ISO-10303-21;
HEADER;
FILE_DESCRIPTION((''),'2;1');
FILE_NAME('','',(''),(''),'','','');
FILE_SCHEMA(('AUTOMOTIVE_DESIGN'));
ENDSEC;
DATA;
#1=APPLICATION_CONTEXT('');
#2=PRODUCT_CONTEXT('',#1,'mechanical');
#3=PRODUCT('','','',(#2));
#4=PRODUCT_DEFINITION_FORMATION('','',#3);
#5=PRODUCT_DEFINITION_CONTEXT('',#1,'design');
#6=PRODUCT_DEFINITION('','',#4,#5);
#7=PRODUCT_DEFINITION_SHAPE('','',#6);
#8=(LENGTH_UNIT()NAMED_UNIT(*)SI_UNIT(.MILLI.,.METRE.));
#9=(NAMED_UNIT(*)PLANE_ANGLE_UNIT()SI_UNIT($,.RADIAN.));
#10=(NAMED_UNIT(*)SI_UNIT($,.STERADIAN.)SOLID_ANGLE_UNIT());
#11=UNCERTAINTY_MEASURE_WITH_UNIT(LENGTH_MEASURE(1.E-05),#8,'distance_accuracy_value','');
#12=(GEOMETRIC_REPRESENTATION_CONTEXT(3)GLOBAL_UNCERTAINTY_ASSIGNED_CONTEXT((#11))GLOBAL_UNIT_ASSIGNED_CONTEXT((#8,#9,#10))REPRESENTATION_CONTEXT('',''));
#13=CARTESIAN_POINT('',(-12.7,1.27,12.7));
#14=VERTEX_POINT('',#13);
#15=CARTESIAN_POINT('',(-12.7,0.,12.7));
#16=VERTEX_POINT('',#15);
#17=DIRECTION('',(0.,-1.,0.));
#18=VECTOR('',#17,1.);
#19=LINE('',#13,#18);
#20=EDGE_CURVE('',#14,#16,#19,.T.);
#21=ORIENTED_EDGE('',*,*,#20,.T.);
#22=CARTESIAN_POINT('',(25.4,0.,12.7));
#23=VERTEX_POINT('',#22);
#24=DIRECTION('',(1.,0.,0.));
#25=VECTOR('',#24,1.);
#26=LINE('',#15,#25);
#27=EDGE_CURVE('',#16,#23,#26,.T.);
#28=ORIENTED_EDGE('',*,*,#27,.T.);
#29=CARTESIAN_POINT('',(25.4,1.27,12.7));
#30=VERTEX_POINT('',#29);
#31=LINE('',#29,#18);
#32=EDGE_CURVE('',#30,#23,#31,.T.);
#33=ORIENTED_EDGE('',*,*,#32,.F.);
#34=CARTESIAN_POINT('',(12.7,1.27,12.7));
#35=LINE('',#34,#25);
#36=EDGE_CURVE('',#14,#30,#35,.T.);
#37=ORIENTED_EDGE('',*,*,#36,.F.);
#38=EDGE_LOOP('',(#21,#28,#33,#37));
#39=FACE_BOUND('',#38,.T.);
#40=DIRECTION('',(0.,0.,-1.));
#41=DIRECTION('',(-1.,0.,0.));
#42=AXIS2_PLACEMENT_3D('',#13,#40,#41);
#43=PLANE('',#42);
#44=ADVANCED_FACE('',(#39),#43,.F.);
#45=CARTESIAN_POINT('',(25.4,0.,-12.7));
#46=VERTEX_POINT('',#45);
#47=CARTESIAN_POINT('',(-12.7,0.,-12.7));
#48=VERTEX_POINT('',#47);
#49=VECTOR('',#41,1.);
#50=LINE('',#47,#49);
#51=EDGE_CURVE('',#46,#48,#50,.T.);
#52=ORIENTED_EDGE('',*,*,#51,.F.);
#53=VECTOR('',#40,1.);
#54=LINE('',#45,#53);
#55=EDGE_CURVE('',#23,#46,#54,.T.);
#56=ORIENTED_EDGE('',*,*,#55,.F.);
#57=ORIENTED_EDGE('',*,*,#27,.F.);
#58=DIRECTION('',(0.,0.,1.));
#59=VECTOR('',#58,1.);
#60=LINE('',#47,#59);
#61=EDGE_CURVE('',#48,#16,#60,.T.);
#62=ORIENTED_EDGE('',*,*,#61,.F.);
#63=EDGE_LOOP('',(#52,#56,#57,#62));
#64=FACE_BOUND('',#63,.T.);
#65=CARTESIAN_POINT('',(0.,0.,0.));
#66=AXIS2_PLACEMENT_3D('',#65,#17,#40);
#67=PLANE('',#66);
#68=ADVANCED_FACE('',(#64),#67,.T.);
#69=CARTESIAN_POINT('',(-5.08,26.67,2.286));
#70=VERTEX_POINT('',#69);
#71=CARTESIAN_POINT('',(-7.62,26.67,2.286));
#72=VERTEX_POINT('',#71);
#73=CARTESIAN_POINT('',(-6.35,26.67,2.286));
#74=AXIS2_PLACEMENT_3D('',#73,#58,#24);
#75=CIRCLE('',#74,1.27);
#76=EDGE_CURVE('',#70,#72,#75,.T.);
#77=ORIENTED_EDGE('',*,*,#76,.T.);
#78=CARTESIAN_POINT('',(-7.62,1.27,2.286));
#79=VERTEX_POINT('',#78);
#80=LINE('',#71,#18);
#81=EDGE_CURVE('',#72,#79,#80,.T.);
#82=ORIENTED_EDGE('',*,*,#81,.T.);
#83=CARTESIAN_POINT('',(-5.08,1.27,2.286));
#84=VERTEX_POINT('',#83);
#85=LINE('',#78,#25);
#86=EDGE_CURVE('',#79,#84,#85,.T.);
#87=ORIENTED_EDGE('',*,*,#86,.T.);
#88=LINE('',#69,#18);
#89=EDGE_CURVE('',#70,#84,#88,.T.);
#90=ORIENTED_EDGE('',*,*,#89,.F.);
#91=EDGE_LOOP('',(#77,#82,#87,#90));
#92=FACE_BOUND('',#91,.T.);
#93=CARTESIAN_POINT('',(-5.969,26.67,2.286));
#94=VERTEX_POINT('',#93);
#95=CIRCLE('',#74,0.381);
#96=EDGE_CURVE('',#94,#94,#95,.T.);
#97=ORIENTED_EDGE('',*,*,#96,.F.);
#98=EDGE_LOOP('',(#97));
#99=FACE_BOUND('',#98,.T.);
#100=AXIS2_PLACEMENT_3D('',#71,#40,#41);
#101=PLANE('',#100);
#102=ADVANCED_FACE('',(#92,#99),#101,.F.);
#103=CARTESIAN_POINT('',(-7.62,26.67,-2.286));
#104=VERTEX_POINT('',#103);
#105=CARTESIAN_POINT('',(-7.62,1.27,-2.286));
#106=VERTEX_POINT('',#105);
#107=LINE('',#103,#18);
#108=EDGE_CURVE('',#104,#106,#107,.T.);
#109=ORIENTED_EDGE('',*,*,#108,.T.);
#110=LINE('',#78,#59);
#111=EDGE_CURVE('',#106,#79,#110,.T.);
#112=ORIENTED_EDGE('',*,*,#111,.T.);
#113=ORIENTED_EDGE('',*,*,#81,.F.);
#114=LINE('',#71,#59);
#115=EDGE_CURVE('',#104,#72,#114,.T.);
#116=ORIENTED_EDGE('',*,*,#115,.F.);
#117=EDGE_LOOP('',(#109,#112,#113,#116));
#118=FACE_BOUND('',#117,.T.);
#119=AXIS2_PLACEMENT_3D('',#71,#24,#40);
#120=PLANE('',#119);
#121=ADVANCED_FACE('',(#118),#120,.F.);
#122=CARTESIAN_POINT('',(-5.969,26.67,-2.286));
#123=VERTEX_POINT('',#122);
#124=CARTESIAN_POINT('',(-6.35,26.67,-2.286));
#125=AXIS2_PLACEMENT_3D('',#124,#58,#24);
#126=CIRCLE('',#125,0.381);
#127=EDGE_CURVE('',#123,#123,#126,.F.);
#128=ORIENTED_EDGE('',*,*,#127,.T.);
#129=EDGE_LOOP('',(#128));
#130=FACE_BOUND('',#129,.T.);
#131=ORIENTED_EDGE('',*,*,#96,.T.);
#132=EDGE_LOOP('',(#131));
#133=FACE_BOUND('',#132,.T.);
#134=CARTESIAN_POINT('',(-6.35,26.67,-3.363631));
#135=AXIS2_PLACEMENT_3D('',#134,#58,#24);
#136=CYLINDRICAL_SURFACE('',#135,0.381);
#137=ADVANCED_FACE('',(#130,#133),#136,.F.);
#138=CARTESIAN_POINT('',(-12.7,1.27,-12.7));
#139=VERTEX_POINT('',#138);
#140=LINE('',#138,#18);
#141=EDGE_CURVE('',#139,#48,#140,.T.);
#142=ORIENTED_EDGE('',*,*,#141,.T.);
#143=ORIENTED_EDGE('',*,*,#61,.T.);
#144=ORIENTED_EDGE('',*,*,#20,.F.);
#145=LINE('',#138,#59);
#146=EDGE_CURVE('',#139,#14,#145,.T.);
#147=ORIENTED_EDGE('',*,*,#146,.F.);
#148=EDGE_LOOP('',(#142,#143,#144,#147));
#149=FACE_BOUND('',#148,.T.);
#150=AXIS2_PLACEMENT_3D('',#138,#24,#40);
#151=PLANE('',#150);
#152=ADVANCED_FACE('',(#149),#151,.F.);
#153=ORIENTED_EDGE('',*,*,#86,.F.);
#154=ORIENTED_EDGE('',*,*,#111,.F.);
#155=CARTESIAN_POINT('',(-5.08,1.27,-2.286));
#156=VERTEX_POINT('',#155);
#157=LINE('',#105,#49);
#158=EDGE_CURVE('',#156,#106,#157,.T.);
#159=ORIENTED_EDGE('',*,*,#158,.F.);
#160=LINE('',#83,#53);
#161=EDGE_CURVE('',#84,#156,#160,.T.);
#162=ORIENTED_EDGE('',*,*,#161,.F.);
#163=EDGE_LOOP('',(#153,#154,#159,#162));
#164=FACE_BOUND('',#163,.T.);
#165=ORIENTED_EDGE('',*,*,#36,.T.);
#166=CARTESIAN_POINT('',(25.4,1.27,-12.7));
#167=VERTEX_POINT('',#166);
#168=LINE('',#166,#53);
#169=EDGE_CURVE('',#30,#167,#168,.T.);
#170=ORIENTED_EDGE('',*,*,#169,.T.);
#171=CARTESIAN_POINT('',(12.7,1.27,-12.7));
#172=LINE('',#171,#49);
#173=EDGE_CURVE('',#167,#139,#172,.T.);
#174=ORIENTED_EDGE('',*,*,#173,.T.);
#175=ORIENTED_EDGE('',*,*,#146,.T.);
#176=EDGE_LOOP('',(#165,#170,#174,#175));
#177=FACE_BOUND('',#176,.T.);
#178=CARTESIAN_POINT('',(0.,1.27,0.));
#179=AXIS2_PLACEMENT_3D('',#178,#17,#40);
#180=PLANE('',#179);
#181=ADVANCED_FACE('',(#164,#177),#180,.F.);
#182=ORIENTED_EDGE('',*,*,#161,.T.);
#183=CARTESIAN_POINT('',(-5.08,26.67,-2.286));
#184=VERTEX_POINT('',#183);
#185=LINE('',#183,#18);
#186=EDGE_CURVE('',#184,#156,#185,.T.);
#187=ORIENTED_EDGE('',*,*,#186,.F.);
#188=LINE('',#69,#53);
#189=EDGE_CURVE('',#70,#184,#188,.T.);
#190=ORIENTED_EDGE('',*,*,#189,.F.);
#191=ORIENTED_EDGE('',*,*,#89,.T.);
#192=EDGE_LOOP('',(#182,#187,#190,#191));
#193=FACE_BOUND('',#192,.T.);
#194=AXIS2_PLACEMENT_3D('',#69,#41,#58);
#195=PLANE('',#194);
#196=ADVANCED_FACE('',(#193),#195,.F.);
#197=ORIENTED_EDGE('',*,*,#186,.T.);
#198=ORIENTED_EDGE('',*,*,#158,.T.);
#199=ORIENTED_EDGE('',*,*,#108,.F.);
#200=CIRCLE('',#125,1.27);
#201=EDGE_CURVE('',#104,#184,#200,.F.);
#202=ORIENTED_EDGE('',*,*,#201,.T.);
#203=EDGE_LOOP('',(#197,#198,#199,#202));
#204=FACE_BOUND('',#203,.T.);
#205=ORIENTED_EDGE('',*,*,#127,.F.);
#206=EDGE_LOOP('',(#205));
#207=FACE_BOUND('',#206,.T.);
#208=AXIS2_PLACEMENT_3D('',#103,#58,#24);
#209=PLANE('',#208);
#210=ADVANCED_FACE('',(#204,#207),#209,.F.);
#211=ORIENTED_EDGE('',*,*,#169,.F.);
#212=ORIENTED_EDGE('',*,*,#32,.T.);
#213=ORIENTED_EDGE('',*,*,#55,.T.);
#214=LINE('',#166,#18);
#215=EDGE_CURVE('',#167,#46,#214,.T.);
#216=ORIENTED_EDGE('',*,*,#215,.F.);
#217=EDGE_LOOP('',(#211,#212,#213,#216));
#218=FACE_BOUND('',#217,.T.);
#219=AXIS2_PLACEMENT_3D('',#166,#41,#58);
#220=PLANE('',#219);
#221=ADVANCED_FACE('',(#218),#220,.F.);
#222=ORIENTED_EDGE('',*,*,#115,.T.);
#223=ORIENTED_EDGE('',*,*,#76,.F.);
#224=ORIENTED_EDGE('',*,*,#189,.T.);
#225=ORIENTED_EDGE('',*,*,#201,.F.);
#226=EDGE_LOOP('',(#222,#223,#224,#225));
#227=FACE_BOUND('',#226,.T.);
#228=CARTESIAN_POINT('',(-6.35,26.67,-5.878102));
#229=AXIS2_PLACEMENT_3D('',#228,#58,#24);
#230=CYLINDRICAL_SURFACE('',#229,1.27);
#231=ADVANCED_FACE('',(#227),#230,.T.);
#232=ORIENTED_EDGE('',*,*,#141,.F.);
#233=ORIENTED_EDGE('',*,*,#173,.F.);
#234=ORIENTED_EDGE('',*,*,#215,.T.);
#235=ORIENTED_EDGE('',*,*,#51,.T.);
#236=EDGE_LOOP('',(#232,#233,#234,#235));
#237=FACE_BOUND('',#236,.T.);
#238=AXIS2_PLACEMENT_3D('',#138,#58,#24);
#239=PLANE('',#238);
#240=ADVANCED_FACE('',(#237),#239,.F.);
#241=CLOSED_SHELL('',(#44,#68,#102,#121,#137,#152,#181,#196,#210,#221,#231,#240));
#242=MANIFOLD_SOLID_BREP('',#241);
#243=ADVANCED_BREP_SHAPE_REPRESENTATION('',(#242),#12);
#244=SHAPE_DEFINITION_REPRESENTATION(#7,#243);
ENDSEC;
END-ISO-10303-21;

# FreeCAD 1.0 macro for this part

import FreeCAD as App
import Part
import Sketcher
Q = App.Units.Quantity


def add_polygon(sketch, points):
    """Adds a closed chain of lines whose ends are joined by coincident constraints."""
    first, n = sketch.GeometryCount, len(points)
    for a, b in zip(points, points[1:] + points[:1]):
        sketch.addGeometry(Part.LineSegment(App.Vector(*a, 0), App.Vector(*b, 0)), False)
    for i in range(n):
        sketch.addConstraint(Sketcher.Constraint("Coincident", first + i, 2, first + (i + 1) % n, 1))

doc = App.newDocument("Part")
body = doc.addObject("PartDesign::Body", "Body")

# Sketch on XZ plane
sketch1 = body.newObject("Sketcher::SketchObject", "Sketch")
sketch1.AttachmentSupport = (doc.getObject("XZ_Plane"), [""])
sketch1.MapMode = "FlatFace"
add_polygon(sketch1, [(25, -13), (-13, -13), (-13, 13), (25, 13)])  # lines 0-3
sketch1.addConstraint([
    Sketcher.Constraint("Horizontal", 0),
    Sketcher.Constraint("Vertical", 1),
    Sketcher.Constraint("Horizontal", 2),
    Sketcher.Constraint("Vertical", 3),
    Sketcher.Constraint("DistanceY", 1, 1, 1, 2, Q("1 in")),
    Sketcher.Constraint("DistanceX", 0, 2, 0, 1, Q("1.5 in")),
    Sketcher.Constraint("DistanceX", -1, 1, 2, 2, Q("1 in")),
    Sketcher.Constraint("DistanceY", 0, 2, -1, 1, Q("0.5 in")),
])
pad1 = body.newObject("PartDesign::Pad", "Pad")
pad1.Profile = sketch1
pad1.Length = Q("0.05 in")
pad1.Reversed = True

# Sketch on XZ plane
sketch2 = body.newObject("Sketcher::SketchObject", "Sketch001")
sketch2.AttachmentSupport = (doc.getObject("XZ_Plane"), [""])
sketch2.MapMode = "FlatFace"
sketch2.AttachmentOffset = App.Placement(App.Vector(0, 0, -0.05 * 25.4), App.Rotation())
add_polygon(sketch2, [(-7.6, -2.3), (-7.6, 2.3), (-5.1, 2.3), (-5.1, -2.3)])  # lines 0-3
sketch2.addConstraint([
    Sketcher.Constraint("Vertical", 0),
    Sketcher.Constraint("Horizontal", 1),
    Sketcher.Constraint("Vertical", 2),
    Sketcher.Constraint("Horizontal", 3),
    Sketcher.Constraint("DistanceX", 1, 1, 1, 2, Q("0.1 in")),
    Sketcher.Constraint("DistanceY", 0, 1, 0, 2, Q("0.18 in")),
    Sketcher.Constraint("DistanceX", 0, 2, -1, 1, Q("0.3 in")),
    Sketcher.Constraint("DistanceY", -1, 1, 0, 2, Q("0.09 in")),
])
pad2 = body.newObject("PartDesign::Pad", "Pad001")
pad2.Profile = sketch2
pad2.Length = Q("1 in")
pad2.Reversed = True

# Sketch on XY plane
sketch3 = body.newObject("Sketcher::SketchObject", "Sketch002")
sketch3.AttachmentSupport = (doc.getObject("XY_Plane"), [""])
sketch3.MapMode = "FlatFace"
sketch3.AttachmentOffset = App.Placement(App.Vector(0, 0, 0.09 * 25.4), App.Rotation())
sketch3.addGeometry(Part.Circle(App.Vector(-6.3, 26.7, 0), App.Vector(0, 0, 1), 1.3), False)
sketch3.addConstraint([
    Sketcher.Constraint("Diameter", 0, Q("0.1 in")),
    Sketcher.Constraint("DistanceX", 0, 3, -1, 1, Q("0.25 in")),
    Sketcher.Constraint("DistanceY", -1, 1, 0, 3, Q("1.05 in")),
])
pad3 = body.newObject("PartDesign::Pad", "Pad002")
pad3.Profile = sketch3
pad3.Length = Q("0.18 in")
pad3.Reversed = True

# Sketch on XY plane
sketch4 = body.newObject("Sketcher::SketchObject", "Sketch003")
sketch4.AttachmentSupport = (doc.getObject("XY_Plane"), [""])
sketch4.MapMode = "FlatFace"
sketch4.AttachmentOffset = App.Placement(App.Vector(0, 0, 0.09 * 25.4), App.Rotation())
sketch4.addGeometry(Part.Circle(App.Vector(-6.35, 26.67, 0), App.Vector(0, 0, 1), 0.38), False)
sketch4.addConstraint([
    Sketcher.Constraint("Diameter", 0, Q("0.03 in")),
    Sketcher.Constraint("DistanceX", 0, 3, -1, 1, Q("0.25 in")),
    Sketcher.Constraint("DistanceY", -1, 1, 0, 3, Q("1.05 in")),
])
pocket1 = body.newObject("PartDesign::Pocket", "Pocket")
pocket1.Profile = sketch4
pocket1.Length = Q("0.18 in")

doc.recompute()
